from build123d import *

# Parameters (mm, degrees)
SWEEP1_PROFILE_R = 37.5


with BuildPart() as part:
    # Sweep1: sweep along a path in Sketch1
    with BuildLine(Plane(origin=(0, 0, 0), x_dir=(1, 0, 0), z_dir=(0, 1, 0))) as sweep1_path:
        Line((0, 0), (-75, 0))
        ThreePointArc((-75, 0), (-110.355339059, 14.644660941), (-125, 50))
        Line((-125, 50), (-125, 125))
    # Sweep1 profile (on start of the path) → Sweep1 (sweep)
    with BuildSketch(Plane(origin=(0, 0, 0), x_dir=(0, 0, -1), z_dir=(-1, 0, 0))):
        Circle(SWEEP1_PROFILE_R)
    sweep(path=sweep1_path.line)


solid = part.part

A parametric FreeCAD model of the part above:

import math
import FreeCAD as App
import Part
import Sketcher
from FreeCAD import Vector
Q = App.Units.Quantity

doc = App.newDocument("Part")
body = doc.addObject("PartDesign::Body", "Body")

sketch1 = body.newObject("Sketcher::SketchObject", "Sketch")
sketch1.AttachmentSupport = (doc.getObject("YZ_Plane"), [""])
sketch1.MapMode = "FlatFace"
sketch1.addGeometry(Part.Circle(Vector(0, 0, 0), Vector(0, 0, 1), 38), False)
sketch1.addConstraint(Sketcher.Constraint("Coincident", 0, 3, -1, 1))
sketch1.addConstraint(Sketcher.Constraint("Diameter", 0, Q("75 mm")))

sketch2 = body.newObject("Sketcher::SketchObject", "Sketch001")
sketch2.AttachmentSupport = (doc.getObject("XZ_Plane"), [""])
sketch2.MapMode = "FlatFace"
sketch2.addGeometry(Part.LineSegment(Vector(0, 0, 0), Vector(-75, 0, 0)), False)
sketch2.addGeometry(Part.ArcOfCircle(Part.Circle(Vector(-75, -50, 0), Vector(0, 0, 1), 50), math.radians(90), math.radians(180)), False)
sketch2.addGeometry(Part.LineSegment(Vector(-125, -50, 0), Vector(-125, -125, 0)), False)
sketch2.addConstraint(Sketcher.Constraint("Tangent", 0, 2, 1, 1))
sketch2.addConstraint(Sketcher.Constraint("Tangent", 1, 2, 2, 1))
sketch2.addConstraint(Sketcher.Constraint("Horizontal", 0))
sketch2.addConstraint(Sketcher.Constraint("Vertical", 2))
sketch2.addConstraint(Sketcher.Constraint("Coincident", 0, 1, -1, 1))
sketch2.addConstraint(Sketcher.Constraint("Equal", 0, 2))
sketch2.addConstraint(Sketcher.Constraint("Radius", 1, Q("50 mm")))
sketch2.addConstraint(Sketcher.Constraint("DistanceX", 0, 2, 0, 1, Q("75 mm")))
doc.recompute()

additivepipe = body.newObject("PartDesign::AdditivePipe", "AdditivePipe")
additivepipe.Profile = sketch1
additivepipe.Spine = (sketch2, ["Edge1", "Edge2", "Edge3"])

doc.recompute()
